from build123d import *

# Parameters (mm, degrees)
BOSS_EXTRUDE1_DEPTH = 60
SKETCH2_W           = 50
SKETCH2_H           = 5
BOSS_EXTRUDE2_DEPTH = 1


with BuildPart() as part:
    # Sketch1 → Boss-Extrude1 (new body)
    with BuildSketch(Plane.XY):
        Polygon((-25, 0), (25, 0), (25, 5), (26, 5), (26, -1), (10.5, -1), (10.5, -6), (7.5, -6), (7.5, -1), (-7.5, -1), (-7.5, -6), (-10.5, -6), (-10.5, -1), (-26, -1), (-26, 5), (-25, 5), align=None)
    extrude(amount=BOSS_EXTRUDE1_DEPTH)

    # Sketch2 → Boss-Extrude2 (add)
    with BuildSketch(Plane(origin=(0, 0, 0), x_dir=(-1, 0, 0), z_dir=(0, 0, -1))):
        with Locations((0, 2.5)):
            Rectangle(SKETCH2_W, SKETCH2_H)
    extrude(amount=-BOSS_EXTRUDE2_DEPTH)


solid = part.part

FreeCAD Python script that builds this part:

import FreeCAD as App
import Part
import Sketcher
from FreeCAD import Vector
Q = App.Units.Quantity


def add_polygon(sketch, points):
    """Adds a closed chain of lines whose ends are joined by coincident constraints."""
    first, n = sketch.GeometryCount, len(points)
    for a, b in zip(points, points[1:] + points[:1]):
        sketch.addGeometry(Part.LineSegment(App.Vector(*a, 0), App.Vector(*b, 0)), False)
    for i in range(n):
        sketch.addConstraint(Sketcher.Constraint("Coincident", first + i, 2, first + (i + 1) % n, 1))

doc = App.newDocument("Part")
body = doc.addObject("PartDesign::Body", "Body")

sketch1 = doc.addObject("Sketcher::SketchObject", "Sketch")
body.addObject(sketch1)
sketch1.AttachmentSupport = (doc.XY_Plane, [""])
sketch1.MapMode = "FlatFace"
add_polygon(sketch1, [(25, 0), (-25, 0), (-25, 5), (-26, 5), (-26, -1), (-10.5, -1), (-10.5, -6), (-7.5, -6), (-7.5, -1), (7.5, -1), (7.5, -6), (10.5, -6), (10.5, -1), (26, -1), (26, 5), (25, 5)])
sketch1.addConstraint([
    Sketcher.Constraint("Horizontal", 0),
    Sketcher.Constraint("Vertical", 1),
    Sketcher.Constraint("Horizontal", 2),
    Sketcher.Constraint("Vertical", 3),
    Sketcher.Constraint("Horizontal", 4),
    Sketcher.Constraint("Vertical", 5),
    Sketcher.Constraint("Horizontal", 6),
    Sketcher.Constraint("Vertical", 7),
    Sketcher.Constraint("Horizontal", 8),
    Sketcher.Constraint("Vertical", 9),
    Sketcher.Constraint("Horizontal", 10),
    Sketcher.Constraint("Vertical", 11),
    Sketcher.Constraint("Horizontal", 12),
    Sketcher.Constraint("Vertical", 13),
    Sketcher.Constraint("Horizontal", 14),
    Sketcher.Constraint("Vertical", 15),
    Sketcher.Constraint("Symmetric", 0, 2, 15, 2, -1, 1),
    Sketcher.Constraint("Symmetric", 6, 2, 9, 2, -2),
    Sketcher.Constraint("Symmetric", 4, 2, 11, 2, -2),
    Sketcher.Constraint("Symmetric", 2, 2, 13, 2, -2),
    Sketcher.Constraint("Horizontal", 4, 2, 7, 2),
    Sketcher.Constraint("Equal", 1, 5),
    Sketcher.Constraint("DistanceX", 0, 2, 0, 1, Q("50 mm")),
    Sketcher.Constraint("DistanceX", 2, 2, 2, 1, Q("1 mm")),
    Sketcher.Constraint("DistanceX", 6, 1, 6, 2, Q("3 mm")),
    Sketcher.Constraint("DistanceX", 8, 1, 8, 2, Q("15 mm")),
    Sketcher.Constraint("DistanceY", 1, 1, 1, 2, Q("5 mm")),
    Sketcher.Constraint("DistanceY", 3, 2, 3, 1, Q("6 mm")),
])
pad1 = doc.addObject("PartDesign::Pad", "Pad")
body.addObject(pad1)
pad1.Profile = sketch1
pad1.Length = 60

sketch2 = doc.addObject("Sketcher::SketchObject", "Sketch001")
body.addObject(sketch2)
sketch2.AttachmentSupport = (doc.XY_Plane, [""])
sketch2.MapMode = "FlatFace"
add_polygon(sketch2, [(25, 5), (25, 0), (-25, 0), (-25, 5)])
sketch2.addConstraint([
    Sketcher.Constraint("Vertical", 0),
    Sketcher.Constraint("Horizontal", 1),
    Sketcher.Constraint("Vertical", 2),
    Sketcher.Constraint("Horizontal", 3),
    Sketcher.Constraint("Symmetric", 0, 2, 1, 2, -1, 1),
    Sketcher.Constraint("DistanceX", 1, 2, 1, 1, Q("50 mm")),
    Sketcher.Constraint("DistanceY", 0, 2, 0, 1, Q("5 mm")),
])
pad2 = doc.addObject("PartDesign::Pad", "Pad001")
body.addObject(pad2)
pad2.Profile = sketch2
pad2.Length = 1

doc.recompute()
